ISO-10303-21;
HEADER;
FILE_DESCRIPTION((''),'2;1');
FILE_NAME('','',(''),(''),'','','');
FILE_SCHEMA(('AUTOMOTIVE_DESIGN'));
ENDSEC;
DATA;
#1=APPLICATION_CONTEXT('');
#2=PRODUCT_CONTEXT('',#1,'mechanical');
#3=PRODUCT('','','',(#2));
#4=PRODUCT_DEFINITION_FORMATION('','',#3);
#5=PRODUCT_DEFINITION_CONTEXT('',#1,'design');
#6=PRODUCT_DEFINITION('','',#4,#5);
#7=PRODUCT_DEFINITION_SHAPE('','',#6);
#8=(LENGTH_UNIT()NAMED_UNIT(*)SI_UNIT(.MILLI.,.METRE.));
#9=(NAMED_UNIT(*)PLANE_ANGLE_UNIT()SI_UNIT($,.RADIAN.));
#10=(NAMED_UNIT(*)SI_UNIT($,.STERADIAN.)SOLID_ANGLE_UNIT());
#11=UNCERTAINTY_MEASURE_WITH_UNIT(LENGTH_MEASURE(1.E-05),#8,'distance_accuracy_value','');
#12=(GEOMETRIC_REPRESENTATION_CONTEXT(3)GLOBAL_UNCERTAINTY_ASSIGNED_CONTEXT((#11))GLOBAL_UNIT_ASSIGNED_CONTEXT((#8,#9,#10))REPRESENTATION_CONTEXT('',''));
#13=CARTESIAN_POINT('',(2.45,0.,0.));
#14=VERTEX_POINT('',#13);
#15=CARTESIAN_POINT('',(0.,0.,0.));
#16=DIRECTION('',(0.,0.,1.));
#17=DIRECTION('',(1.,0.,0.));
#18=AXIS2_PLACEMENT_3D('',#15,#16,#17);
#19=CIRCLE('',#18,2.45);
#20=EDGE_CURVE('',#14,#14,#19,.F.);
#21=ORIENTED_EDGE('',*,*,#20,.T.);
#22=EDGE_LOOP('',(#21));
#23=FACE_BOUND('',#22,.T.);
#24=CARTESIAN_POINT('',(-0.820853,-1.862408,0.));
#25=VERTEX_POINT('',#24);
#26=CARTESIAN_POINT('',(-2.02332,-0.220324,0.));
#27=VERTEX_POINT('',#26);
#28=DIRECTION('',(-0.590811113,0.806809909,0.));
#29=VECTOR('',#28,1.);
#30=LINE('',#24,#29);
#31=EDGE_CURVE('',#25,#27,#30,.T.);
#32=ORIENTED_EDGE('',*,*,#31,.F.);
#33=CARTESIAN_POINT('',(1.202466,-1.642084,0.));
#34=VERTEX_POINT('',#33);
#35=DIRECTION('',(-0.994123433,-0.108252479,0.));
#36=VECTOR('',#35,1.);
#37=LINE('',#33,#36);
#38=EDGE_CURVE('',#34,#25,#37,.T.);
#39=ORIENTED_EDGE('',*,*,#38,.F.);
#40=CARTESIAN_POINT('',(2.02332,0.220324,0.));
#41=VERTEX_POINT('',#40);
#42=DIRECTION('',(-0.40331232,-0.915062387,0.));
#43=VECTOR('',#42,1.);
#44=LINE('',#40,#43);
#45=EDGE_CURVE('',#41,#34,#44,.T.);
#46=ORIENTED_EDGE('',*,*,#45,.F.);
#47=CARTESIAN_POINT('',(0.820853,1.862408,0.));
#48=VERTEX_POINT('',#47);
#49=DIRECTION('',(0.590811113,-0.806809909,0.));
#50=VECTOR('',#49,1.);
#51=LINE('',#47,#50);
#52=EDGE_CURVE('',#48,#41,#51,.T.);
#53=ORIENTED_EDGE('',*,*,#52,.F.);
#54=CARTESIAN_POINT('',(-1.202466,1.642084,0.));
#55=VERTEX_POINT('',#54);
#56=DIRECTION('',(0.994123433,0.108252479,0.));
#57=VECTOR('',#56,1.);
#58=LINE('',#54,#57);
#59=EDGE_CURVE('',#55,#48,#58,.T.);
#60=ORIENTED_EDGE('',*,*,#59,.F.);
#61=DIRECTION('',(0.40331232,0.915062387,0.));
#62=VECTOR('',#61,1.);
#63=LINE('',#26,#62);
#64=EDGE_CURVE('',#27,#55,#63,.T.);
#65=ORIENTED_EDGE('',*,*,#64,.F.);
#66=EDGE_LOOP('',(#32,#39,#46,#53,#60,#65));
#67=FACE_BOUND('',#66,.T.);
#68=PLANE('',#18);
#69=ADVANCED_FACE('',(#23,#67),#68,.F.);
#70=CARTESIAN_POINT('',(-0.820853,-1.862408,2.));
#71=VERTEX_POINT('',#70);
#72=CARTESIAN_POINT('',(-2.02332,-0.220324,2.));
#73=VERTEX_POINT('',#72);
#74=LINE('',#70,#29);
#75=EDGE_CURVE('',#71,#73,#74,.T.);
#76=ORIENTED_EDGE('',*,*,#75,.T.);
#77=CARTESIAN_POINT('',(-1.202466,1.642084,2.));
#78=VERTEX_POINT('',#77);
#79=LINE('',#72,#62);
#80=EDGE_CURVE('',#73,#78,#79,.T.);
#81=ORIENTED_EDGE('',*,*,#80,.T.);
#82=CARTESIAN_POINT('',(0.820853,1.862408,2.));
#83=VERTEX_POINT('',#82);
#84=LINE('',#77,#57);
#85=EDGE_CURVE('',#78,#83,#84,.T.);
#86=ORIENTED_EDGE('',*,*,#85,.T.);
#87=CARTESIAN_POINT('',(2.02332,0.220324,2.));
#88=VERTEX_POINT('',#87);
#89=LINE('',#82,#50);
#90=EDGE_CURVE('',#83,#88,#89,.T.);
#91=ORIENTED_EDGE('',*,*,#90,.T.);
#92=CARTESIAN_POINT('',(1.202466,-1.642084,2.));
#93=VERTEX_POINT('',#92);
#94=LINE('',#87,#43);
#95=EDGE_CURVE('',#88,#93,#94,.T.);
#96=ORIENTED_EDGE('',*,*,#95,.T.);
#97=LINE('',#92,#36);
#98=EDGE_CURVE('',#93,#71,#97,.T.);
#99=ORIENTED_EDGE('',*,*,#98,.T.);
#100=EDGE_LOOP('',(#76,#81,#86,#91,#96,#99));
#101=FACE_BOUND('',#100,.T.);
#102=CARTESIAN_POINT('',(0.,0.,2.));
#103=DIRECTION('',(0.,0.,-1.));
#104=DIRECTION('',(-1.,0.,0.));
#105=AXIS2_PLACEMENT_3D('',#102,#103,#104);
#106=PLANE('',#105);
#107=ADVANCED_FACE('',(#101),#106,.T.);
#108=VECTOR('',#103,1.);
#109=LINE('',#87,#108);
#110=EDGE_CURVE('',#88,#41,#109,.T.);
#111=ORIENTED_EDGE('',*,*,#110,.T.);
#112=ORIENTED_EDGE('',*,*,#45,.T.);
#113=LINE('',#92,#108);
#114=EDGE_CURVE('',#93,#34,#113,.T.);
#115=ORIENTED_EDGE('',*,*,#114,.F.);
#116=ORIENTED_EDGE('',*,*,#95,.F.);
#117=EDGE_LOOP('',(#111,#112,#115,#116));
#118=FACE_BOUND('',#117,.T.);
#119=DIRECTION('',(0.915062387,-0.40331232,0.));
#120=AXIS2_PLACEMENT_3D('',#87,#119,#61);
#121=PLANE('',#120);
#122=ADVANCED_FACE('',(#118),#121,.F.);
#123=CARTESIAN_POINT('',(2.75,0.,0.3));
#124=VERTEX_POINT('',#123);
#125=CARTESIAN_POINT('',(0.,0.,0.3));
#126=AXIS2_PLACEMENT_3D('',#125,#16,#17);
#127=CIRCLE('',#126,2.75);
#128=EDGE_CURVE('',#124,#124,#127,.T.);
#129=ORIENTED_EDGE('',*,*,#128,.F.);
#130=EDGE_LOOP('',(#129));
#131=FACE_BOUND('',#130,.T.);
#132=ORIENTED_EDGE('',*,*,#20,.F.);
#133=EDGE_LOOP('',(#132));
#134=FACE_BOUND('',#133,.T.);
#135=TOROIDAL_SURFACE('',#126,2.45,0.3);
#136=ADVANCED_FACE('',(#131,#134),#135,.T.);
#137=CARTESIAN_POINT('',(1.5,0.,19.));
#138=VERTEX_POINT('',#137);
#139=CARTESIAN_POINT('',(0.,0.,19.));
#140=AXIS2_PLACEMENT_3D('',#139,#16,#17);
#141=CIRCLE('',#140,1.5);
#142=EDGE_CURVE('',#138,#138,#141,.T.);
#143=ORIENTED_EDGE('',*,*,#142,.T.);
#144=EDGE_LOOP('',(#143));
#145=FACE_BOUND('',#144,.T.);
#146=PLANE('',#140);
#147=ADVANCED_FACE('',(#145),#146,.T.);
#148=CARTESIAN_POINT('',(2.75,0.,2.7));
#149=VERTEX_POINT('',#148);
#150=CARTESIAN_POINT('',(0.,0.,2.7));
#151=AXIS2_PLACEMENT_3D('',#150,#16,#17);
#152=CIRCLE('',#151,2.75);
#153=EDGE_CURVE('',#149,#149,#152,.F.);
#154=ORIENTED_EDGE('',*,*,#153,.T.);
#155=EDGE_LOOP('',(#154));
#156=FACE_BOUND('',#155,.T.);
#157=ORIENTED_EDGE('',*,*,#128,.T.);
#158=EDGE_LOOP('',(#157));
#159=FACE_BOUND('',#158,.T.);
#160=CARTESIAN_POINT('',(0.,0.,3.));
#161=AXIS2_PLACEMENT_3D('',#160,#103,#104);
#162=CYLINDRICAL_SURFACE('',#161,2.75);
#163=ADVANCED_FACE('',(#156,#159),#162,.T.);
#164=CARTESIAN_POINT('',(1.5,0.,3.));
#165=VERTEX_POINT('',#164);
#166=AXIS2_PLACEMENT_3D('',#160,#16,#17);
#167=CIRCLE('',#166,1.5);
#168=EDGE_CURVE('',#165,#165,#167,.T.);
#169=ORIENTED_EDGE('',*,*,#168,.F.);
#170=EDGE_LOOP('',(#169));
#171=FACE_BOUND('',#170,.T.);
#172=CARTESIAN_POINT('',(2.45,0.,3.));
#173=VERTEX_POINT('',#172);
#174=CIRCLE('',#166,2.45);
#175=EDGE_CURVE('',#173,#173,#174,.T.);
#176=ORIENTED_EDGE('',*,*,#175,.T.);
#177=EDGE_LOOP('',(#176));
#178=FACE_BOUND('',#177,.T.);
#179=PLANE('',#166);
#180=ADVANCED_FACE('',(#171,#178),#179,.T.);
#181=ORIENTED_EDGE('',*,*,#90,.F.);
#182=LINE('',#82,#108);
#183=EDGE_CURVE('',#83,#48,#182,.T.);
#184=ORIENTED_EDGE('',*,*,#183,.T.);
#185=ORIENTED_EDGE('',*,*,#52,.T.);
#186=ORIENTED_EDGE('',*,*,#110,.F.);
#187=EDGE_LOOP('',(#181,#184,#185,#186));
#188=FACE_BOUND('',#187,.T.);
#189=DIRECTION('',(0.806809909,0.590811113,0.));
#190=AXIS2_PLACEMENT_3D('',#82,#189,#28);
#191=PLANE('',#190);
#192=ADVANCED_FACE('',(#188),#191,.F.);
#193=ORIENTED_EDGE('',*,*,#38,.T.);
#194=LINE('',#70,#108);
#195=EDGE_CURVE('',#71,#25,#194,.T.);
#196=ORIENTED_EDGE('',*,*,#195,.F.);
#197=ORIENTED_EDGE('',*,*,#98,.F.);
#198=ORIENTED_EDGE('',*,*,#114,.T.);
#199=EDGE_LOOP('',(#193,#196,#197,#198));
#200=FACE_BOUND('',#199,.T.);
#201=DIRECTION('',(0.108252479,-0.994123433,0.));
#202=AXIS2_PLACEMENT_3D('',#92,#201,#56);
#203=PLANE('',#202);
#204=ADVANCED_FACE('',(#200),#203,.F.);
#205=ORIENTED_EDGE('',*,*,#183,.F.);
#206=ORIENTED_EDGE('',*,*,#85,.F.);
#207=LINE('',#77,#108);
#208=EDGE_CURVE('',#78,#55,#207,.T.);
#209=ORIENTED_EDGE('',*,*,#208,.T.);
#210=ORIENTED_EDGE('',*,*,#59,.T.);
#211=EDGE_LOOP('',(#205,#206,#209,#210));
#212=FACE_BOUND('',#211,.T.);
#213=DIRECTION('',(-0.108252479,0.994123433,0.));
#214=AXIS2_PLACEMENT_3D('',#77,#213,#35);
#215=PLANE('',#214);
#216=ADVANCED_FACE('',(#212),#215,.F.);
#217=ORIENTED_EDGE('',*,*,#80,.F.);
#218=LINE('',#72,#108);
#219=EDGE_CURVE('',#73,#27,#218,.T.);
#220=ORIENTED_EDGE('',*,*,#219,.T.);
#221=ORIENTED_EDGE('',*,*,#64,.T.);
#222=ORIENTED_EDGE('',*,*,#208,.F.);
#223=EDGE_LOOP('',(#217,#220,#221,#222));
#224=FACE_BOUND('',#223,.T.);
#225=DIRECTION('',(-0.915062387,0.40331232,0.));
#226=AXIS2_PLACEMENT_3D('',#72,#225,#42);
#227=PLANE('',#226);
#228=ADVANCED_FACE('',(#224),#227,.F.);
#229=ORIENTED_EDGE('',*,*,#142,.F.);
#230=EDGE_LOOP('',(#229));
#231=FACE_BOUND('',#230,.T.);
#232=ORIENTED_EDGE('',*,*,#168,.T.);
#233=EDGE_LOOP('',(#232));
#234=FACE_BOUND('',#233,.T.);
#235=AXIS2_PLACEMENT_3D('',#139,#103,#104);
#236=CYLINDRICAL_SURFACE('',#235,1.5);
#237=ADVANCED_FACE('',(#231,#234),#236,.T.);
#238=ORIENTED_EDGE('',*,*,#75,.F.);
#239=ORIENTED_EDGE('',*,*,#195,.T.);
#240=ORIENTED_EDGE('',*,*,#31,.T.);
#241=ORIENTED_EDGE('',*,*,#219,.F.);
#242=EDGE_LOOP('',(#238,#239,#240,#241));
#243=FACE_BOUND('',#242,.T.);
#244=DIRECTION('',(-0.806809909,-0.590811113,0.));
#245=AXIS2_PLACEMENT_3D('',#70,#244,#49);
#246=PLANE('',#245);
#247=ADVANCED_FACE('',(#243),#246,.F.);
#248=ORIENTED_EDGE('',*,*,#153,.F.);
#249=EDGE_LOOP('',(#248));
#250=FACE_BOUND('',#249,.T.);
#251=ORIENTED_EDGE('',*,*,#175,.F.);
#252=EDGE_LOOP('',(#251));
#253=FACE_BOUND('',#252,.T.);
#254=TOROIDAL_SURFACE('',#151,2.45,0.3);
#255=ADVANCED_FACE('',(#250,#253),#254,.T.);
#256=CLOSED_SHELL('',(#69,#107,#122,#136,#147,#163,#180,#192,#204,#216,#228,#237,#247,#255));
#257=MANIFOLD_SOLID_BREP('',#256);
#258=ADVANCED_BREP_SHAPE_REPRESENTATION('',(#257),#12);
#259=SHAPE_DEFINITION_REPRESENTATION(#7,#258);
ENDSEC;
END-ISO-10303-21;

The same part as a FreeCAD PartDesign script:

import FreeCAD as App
import Part
import Sketcher
from FreeCAD import Vector


def edges_at(feature, points):
    """Names of the edges that pass closest to the given points."""
    edges = feature.Shape.Edges
    near = lambda p: min(range(len(edges)), key=lambda i: edges[i].distToShape(Part.Vertex(*p))[0])
    return sorted({f"Edge{near(p) + 1}" for p in points})


def add_polygon(sketch, points):
    """Adds a closed chain of lines whose ends are joined by coincident constraints."""
    first, n = sketch.GeometryCount, len(points)
    for a, b in zip(points, points[1:] + points[:1]):
        sketch.addGeometry(Part.LineSegment(App.Vector(*a, 0), App.Vector(*b, 0)), False)
    for i in range(n):
        sketch.addConstraint(Sketcher.Constraint("Coincident", first + i, 2, first + (i + 1) % n, 1))

doc = App.newDocument("Part")
params = doc.addObject("Spreadsheet::Sheet", "Params")
for row, (alias, value) in enumerate([
    ("sketch1_diameter", "5.5 mm"),
    ("pad1_length", "3 mm"),
    ("sketch2_diameter", "3 mm"),
    ("pad2_length", "16 mm"),
    ("fillet_radius", "0.3 mm"),
    ("pocket1_length", "2 mm"),
], start=1):
    params.set(f"A{row}", alias)
    params.set(f"B{row}", "=" + value)
    params.setAlias(f"B{row}", alias)

body = doc.addObject("PartDesign::Body", "Body")

# Sketch on XY plane
sketch1 = body.newObject("Sketcher::SketchObject", "Sketch")
sketch1.AttachmentSupport = (doc.getObject("XY_Plane"), [""])
sketch1.MapMode = "FlatFace"
sketch1.addGeometry(Part.Circle(Vector(0, 0, 0), Vector(0, 0, 1), 2.8), False)
sketch1.addConstraint([
    Sketcher.Constraint("Coincident", 0, 3, -1, 1),
    Sketcher.Constraint("Diameter", 0, 5.5),
])
sketch1.setExpression("Constraints[1]", "Params.sketch1_diameter")
pad1 = body.newObject("PartDesign::Pad", "Pad")
pad1.Profile = sketch1
pad1.setExpression("Length", "Params.pad1_length")

# Sketch on XY plane
sketch2 = body.newObject("Sketcher::SketchObject", "Sketch001")
sketch2.AttachmentSupport = (doc.getObject("XY_Plane"), [""])
sketch2.MapMode = "FlatFace"
sketch2.AttachmentOffset = App.Placement(Vector(0, 0, 3), App.Rotation())
sketch2.addGeometry(Part.Circle(Vector(0, 0, 0), Vector(0, 0, 1), 1.5), False)
sketch2.addConstraint([
    Sketcher.Constraint("Coincident", 0, 3, -1, 1),
    Sketcher.Constraint("Diameter", 0, 3.0),
])
sketch2.setExpression("Constraints[1]", "Params.sketch2_diameter")
pad2 = body.newObject("PartDesign::Pad", "Pad001")
pad2.Profile = sketch2
pad2.setExpression("Length", "Params.pad2_length")
doc.recompute()

fillet = body.newObject("PartDesign::Fillet", "Fillet")
fillet.Base = (pad2, edges_at(pad2, [(-2.75, 0, 0), (-2.75, 0, 3)]))
fillet.setExpression("Radius", "Params.fillet_radius")

# Sketch on XY plane
sketch3 = body.newObject("Sketcher::SketchObject", "Sketch002")
sketch3.AttachmentSupport = (doc.getObject("XY_Plane"), [""])
sketch3.MapMode = "FlatFace"
add_polygon(sketch3, [(0.8, 1.9), (2, 0.2), (1.2, -1.6), (-0.8, -1.9), (-2, -0.2), (-1.2, 1.6)])  # lines 0-5
sketch3.addConstraint([
    Sketcher.Constraint("Symmetric", 0, 2, 3, 2, -1, 1),
    Sketcher.Constraint("Symmetric", 1, 2, 4, 2, -1, 1),
    Sketcher.Constraint("Symmetric", 2, 2, 5, 2, -1, 1),
    Sketcher.Constraint("Equal", 0, 1),
    Sketcher.Constraint("Equal", 1, 2),
    Sketcher.Constraint("Distance", 0, 2.03528),
    Sketcher.Constraint("DistanceX", -1, 1, 0, 2, 2.02332),
    Sketcher.Constraint("DistanceY", 2, 2, -1, 1, 1.862408),
    Sketcher.Constraint("DistanceY", 1, 2, 0, 2, 1.862408),
])
pocket1 = body.newObject("PartDesign::Pocket", "Pocket")
pocket1.Profile = sketch3
pocket1.setExpression("Length", "Params.pocket1_length")
pocket1.Reversed = True

doc.recompute()
